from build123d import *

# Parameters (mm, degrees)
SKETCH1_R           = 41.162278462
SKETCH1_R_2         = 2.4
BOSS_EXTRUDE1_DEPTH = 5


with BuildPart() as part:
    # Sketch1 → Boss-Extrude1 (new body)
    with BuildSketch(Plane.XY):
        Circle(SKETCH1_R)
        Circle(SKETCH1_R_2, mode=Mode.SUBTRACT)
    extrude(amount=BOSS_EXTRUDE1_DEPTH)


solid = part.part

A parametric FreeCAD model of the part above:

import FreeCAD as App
import Part
import Sketcher

V = App.Vector
Q = App.Units.Quantity

doc = App.newDocument("Part")
body = doc.addObject("PartDesign::Body", "Body")

# Sketch on XY plane
sketch1 = body.newObject("Sketcher::SketchObject", "Sketch")
sketch1.AttachmentSupport = (doc.getObject("XY_Plane"), [""])
sketch1.MapMode = "FlatFace"
sketch1.addGeometry([
    Part.Circle(V(0, 0, 0), V(0, 0, 1), 41.2),
    Part.Circle(V(0, 0, 0), V(0, 0, 1), 2.4),
], False)
sketch1.addConstraint([
    Sketcher.Constraint("Coincident", 0, 3, -1, 1),
    Sketcher.Constraint("Coincident", 1, 3, -1, 1),
    Sketcher.Constraint("Diameter", 1, Q("4.8 mm")),
    Sketcher.Constraint("Diameter", 0, Q("82.324557 mm")),
])
pad1 = body.newObject("PartDesign::Pad", "Pad")
pad1.Profile = sketch1
pad1.Length = 5

doc.recompute()
